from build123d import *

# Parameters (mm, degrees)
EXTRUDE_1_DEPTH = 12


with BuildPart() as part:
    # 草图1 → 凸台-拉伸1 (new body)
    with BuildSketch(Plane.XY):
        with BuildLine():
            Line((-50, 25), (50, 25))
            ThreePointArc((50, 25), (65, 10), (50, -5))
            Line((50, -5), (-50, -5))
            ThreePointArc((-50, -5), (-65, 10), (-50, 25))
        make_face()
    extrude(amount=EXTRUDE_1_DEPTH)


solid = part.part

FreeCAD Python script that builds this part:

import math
import FreeCAD as App
import Part
import Sketcher

V = App.Vector
Q = App.Units.Quantity

doc = App.newDocument("Part")
body = doc.addObject("PartDesign::Body", "Body")

# Sketch on XY plane
sketch1 = body.newObject("Sketcher::SketchObject", "Sketch")
sketch1.AttachmentSupport = (doc.getObject("XY_Plane"), [""])
sketch1.MapMode = "FlatFace"
sketch1.addGeometry([
    Part.LineSegment(V(50, 25, 0), V(-50, 25, 0)),
    Part.ArcOfCircle(Part.Circle(V(-50, 10, 0), V(0, 0, 1), 15), math.radians(90), math.radians(270)),
    Part.LineSegment(V(-50, -5, 0), V(50, -5, 0)),
    Part.ArcOfCircle(Part.Circle(V(50, 10, 0), V(0, 0, 1), 15), math.radians(-90), math.radians(90)),
], False)
sketch1.addConstraint([
    Sketcher.Constraint("Tangent", 0, 2, 1, 1),
    Sketcher.Constraint("Tangent", 1, 2, 2, 1),
    Sketcher.Constraint("Tangent", 2, 2, 3, 1),
    Sketcher.Constraint("Tangent", 3, 2, 0, 1),
    Sketcher.Constraint("Horizontal", 0),
    Sketcher.Constraint("Horizontal", 2),
    Sketcher.Constraint("Radius", 1, Q("15 mm")),
    Sketcher.Constraint("DistanceX", 0, 2, 0, 1, Q("100 mm")),
    Sketcher.Constraint("DistanceX", 1, 3, -1, 1, Q("50 mm")),
    Sketcher.Constraint("DistanceY", -1, 1, 1, 3, Q("10 mm")),
])
pad1 = body.newObject("PartDesign::Pad", "Pad")
pad1.Profile = sketch1
pad1.Length = 12

doc.recompute()
